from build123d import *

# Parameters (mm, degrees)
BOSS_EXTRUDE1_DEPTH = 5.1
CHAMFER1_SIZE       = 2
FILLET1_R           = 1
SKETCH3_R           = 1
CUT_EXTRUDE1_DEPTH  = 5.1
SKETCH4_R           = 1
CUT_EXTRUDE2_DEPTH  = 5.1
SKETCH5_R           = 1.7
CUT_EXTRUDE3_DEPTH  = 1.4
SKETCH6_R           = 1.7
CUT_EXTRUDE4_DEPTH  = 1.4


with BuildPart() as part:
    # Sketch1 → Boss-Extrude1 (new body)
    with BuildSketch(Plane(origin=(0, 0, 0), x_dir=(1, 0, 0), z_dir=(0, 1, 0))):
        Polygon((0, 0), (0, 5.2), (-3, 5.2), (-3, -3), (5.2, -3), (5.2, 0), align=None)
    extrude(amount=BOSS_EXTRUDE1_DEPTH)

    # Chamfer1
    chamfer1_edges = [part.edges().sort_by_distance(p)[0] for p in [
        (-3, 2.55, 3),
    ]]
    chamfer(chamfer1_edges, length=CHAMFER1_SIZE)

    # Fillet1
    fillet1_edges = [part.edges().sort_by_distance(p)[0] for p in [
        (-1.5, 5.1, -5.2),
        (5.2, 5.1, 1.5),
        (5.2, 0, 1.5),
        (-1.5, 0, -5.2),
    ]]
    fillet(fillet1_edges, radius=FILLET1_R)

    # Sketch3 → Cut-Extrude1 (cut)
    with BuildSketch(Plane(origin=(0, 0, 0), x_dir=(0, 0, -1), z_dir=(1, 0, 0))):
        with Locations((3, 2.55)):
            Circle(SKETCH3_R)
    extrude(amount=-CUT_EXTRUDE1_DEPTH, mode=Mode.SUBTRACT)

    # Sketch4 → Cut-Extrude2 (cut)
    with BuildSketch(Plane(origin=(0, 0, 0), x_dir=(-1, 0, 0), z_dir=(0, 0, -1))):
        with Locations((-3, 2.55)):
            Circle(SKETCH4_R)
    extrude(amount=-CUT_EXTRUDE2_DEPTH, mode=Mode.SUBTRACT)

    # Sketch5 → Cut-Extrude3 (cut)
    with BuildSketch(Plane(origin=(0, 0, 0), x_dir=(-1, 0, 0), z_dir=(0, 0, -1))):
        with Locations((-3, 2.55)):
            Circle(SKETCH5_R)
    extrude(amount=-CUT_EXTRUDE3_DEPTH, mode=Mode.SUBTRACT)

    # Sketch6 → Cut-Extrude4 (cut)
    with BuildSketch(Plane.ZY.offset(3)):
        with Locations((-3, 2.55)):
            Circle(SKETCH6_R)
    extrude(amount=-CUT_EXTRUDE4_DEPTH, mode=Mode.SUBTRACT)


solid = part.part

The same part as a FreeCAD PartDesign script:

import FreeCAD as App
import Part
import Sketcher

V = App.Vector
Q = App.Units.Quantity


def edges_at(feature, points):
    """Names of the edges that pass closest to the given points."""
    edges = feature.Shape.Edges
    near = lambda p: min(range(len(edges)), key=lambda i: edges[i].distToShape(Part.Vertex(*p))[0])
    return sorted({f"Edge{near(p) + 1}" for p in points})

doc = App.newDocument("Part")
params = doc.addObject("Spreadsheet::Sheet", "Params")
for row, (alias, value) in enumerate([
    ("sketch1_width", "3 mm"),
    ("sketch1_width2", "8.2 mm"),
    ("pad1_length", "5.1 mm"),
    ("chamfer_size", "2 mm"),
    ("fillet_radius", "1 mm"),
    ("sketch2_diameter", "2 mm"),
    ("pocket1_length", "5.1 mm"),
    ("sketch3_diameter", "2 mm"),
    ("pocket2_length", "5.1 mm"),
    ("sketch4_diameter", "3.4 mm"),
    ("pocket3_length", "1.4 mm"),
    ("sketch5_diameter", "3.4 mm"),
    ("pocket4_length", "1.4 mm"),
], start=1):
    params.set(f"A{row}", alias)
    params.set(f"B{row}", "=" + value)
    params.setAlias(f"B{row}", alias)

body = doc.addObject("PartDesign::Body", "Body")

# Sketch on XZ plane
sketch1 = body.newObject("Sketcher::SketchObject", "Sketch")
sketch1.AttachmentSupport = (doc.getObject("XZ_Plane"), [""])
sketch1.MapMode = "FlatFace"
sketch1.addGeometry(Part.LineSegment(V(0, 0, 0), V(0, -5.2, 0)), False)
sketch1.addGeometry(Part.LineSegment(V(0, -5.2, 0), V(-3, -5.2, 0)), False)
sketch1.addGeometry(Part.LineSegment(V(-3, -5.2, 0), V(-3, 3, 0)), False)
sketch1.addGeometry(Part.LineSegment(V(-3, 3, 0), V(5.2, 3, 0)), False)
sketch1.addGeometry(Part.LineSegment(V(5.2, 3, 0), V(5.2, 0, 0)), False)
sketch1.addGeometry(Part.LineSegment(V(5.2, 0, 0), V(0, 0, 0)), False)
sketch1.addConstraint(Sketcher.Constraint("Coincident", 0, 2, 1, 1))
sketch1.addConstraint(Sketcher.Constraint("Coincident", 1, 2, 2, 1))
sketch1.addConstraint(Sketcher.Constraint("Coincident", 2, 2, 3, 1))
sketch1.addConstraint(Sketcher.Constraint("Coincident", 3, 2, 4, 1))
sketch1.addConstraint(Sketcher.Constraint("Coincident", 4, 2, 5, 1))
sketch1.addConstraint(Sketcher.Constraint("Coincident", 5, 2, 0, 1))
sketch1.addConstraint(Sketcher.Constraint("Vertical", 0))
sketch1.addConstraint(Sketcher.Constraint("Horizontal", 1))
sketch1.addConstraint(Sketcher.Constraint("Vertical", 2))
sketch1.addConstraint(Sketcher.Constraint("Horizontal", 3))
sketch1.addConstraint(Sketcher.Constraint("Vertical", 4))
sketch1.addConstraint(Sketcher.Constraint("Horizontal", 5))
sketch1.addConstraint(Sketcher.Constraint("Coincident", 5, 2, -1, 1))
sketch1.addConstraint(Sketcher.Constraint("Equal", 5, 0))
sketch1.addConstraint(Sketcher.Constraint("Equal", 3, 2))
sketch1.addConstraint(Sketcher.Constraint("DistanceX", 1, 2, 1, 1, Q("3 mm")))
sketch1.addConstraint(Sketcher.Constraint("DistanceX", 3, 1, 3, 2, Q("8.2 mm")))
sketch1.setExpression("Constraints[15]", "Params.sketch1_width")
sketch1.setExpression("Constraints[16]", "Params.sketch1_width2")
pad1 = body.newObject("PartDesign::Pad", "Pad")
pad1.Profile = sketch1
pad1.setExpression("Length", "Params.pad1_length")
pad1.Reversed = True
doc.recompute()

chamfer = body.newObject("PartDesign::Chamfer", "Chamfer")
chamfer.Base = (pad1, edges_at(pad1, [(-3, 2.55, 3)]))
chamfer.setExpression("Size", "Params.chamfer_size")
doc.recompute()

fillet = body.newObject("PartDesign::Fillet", "Fillet")
fillet.Base = (chamfer, edges_at(chamfer, [
    (-1.5, 5.1, -5.2),
    (5.2, 5.1, 1.5),
    (5.2, 0, 1.5),
    (-1.5, 0, -5.2),
]))
fillet.setExpression("Radius", "Params.fillet_radius")

# Sketch on YZ plane
sketch2 = body.newObject("Sketcher::SketchObject", "Sketch001")
sketch2.AttachmentSupport = (doc.getObject("YZ_Plane"), [""])
sketch2.MapMode = "FlatFace"
sketch2.addGeometry(Part.Circle(V(2.5, -3, 0), V(0, 0, 1), 1), False)
sketch2.addConstraint(Sketcher.Constraint("Diameter", 0, Q("2 mm")))
sketch2.addConstraint(Sketcher.Constraint("DistanceY", 0, 3, -1, 1, Q("3 mm")))
sketch2.addConstraint(Sketcher.Constraint("DistanceX", -1, 1, 0, 3, Q("2.55 mm")))
sketch2.setExpression("Constraints[0]", "Params.sketch2_diameter")
pocket1 = body.newObject("PartDesign::Pocket", "Pocket")
pocket1.Profile = sketch2
pocket1.setExpression("Length", "Params.pocket1_length")

# Sketch on XY plane
sketch3 = body.newObject("Sketcher::SketchObject", "Sketch002")
sketch3.AttachmentSupport = (doc.getObject("XY_Plane"), [""])
sketch3.MapMode = "FlatFace"
sketch3.addGeometry(Part.Circle(V(3, 2.5, 0), V(0, 0, 1), 1), False)
sketch3.addConstraint(Sketcher.Constraint("Diameter", 0, Q("2 mm")))
sketch3.addConstraint(Sketcher.Constraint("DistanceX", -1, 1, 0, 3, Q("3 mm")))
sketch3.addConstraint(Sketcher.Constraint("DistanceY", -1, 1, 0, 3, Q("2.55 mm")))
sketch3.setExpression("Constraints[0]", "Params.sketch3_diameter")
pocket2 = body.newObject("PartDesign::Pocket", "Pocket001")
pocket2.Profile = sketch3
pocket2.setExpression("Length", "Params.pocket2_length")
pocket2.Reversed = True

# Sketch on XY plane
sketch4 = body.newObject("Sketcher::SketchObject", "Sketch003")
sketch4.AttachmentSupport = (doc.getObject("XY_Plane"), [""])
sketch4.MapMode = "FlatFace"
sketch4.addGeometry(Part.Circle(V(3, 2.5, 0), V(0, 0, 1), 1.7), False)
sketch4.addConstraint(Sketcher.Constraint("Diameter", 0, Q("3.4 mm")))
sketch4.addConstraint(Sketcher.Constraint("DistanceX", -1, 1, 0, 3, Q("3 mm")))
sketch4.addConstraint(Sketcher.Constraint("DistanceY", -1, 1, 0, 3, Q("2.55 mm")))
sketch4.setExpression("Constraints[0]", "Params.sketch4_diameter")
pocket3 = body.newObject("PartDesign::Pocket", "Pocket002")
pocket3.Profile = sketch4
pocket3.setExpression("Length", "Params.pocket3_length")
pocket3.Reversed = True

# Sketch on YZ plane
sketch5 = body.newObject("Sketcher::SketchObject", "Sketch004")
sketch5.AttachmentSupport = (doc.getObject("YZ_Plane"), [""])
sketch5.MapMode = "FlatFace"
sketch5.AttachmentOffset = App.Placement(V(0, 0, -3), App.Rotation())
sketch5.addGeometry(Part.Circle(V(2.5, -3, 0), V(0, 0, 1), 1.7), False)
sketch5.addConstraint(Sketcher.Constraint("Diameter", 0, Q("3.4 mm")))
sketch5.addConstraint(Sketcher.Constraint("DistanceY", 0, 3, -1, 1, Q("3 mm")))
sketch5.addConstraint(Sketcher.Constraint("DistanceX", -1, 1, 0, 3, Q("2.55 mm")))
sketch5.setExpression("Constraints[0]", "Params.sketch5_diameter")
pocket4 = body.newObject("PartDesign::Pocket", "Pocket003")
pocket4.Profile = sketch5
pocket4.setExpression("Length", "Params.pocket4_length")
pocket4.Reversed = True

doc.recompute()
